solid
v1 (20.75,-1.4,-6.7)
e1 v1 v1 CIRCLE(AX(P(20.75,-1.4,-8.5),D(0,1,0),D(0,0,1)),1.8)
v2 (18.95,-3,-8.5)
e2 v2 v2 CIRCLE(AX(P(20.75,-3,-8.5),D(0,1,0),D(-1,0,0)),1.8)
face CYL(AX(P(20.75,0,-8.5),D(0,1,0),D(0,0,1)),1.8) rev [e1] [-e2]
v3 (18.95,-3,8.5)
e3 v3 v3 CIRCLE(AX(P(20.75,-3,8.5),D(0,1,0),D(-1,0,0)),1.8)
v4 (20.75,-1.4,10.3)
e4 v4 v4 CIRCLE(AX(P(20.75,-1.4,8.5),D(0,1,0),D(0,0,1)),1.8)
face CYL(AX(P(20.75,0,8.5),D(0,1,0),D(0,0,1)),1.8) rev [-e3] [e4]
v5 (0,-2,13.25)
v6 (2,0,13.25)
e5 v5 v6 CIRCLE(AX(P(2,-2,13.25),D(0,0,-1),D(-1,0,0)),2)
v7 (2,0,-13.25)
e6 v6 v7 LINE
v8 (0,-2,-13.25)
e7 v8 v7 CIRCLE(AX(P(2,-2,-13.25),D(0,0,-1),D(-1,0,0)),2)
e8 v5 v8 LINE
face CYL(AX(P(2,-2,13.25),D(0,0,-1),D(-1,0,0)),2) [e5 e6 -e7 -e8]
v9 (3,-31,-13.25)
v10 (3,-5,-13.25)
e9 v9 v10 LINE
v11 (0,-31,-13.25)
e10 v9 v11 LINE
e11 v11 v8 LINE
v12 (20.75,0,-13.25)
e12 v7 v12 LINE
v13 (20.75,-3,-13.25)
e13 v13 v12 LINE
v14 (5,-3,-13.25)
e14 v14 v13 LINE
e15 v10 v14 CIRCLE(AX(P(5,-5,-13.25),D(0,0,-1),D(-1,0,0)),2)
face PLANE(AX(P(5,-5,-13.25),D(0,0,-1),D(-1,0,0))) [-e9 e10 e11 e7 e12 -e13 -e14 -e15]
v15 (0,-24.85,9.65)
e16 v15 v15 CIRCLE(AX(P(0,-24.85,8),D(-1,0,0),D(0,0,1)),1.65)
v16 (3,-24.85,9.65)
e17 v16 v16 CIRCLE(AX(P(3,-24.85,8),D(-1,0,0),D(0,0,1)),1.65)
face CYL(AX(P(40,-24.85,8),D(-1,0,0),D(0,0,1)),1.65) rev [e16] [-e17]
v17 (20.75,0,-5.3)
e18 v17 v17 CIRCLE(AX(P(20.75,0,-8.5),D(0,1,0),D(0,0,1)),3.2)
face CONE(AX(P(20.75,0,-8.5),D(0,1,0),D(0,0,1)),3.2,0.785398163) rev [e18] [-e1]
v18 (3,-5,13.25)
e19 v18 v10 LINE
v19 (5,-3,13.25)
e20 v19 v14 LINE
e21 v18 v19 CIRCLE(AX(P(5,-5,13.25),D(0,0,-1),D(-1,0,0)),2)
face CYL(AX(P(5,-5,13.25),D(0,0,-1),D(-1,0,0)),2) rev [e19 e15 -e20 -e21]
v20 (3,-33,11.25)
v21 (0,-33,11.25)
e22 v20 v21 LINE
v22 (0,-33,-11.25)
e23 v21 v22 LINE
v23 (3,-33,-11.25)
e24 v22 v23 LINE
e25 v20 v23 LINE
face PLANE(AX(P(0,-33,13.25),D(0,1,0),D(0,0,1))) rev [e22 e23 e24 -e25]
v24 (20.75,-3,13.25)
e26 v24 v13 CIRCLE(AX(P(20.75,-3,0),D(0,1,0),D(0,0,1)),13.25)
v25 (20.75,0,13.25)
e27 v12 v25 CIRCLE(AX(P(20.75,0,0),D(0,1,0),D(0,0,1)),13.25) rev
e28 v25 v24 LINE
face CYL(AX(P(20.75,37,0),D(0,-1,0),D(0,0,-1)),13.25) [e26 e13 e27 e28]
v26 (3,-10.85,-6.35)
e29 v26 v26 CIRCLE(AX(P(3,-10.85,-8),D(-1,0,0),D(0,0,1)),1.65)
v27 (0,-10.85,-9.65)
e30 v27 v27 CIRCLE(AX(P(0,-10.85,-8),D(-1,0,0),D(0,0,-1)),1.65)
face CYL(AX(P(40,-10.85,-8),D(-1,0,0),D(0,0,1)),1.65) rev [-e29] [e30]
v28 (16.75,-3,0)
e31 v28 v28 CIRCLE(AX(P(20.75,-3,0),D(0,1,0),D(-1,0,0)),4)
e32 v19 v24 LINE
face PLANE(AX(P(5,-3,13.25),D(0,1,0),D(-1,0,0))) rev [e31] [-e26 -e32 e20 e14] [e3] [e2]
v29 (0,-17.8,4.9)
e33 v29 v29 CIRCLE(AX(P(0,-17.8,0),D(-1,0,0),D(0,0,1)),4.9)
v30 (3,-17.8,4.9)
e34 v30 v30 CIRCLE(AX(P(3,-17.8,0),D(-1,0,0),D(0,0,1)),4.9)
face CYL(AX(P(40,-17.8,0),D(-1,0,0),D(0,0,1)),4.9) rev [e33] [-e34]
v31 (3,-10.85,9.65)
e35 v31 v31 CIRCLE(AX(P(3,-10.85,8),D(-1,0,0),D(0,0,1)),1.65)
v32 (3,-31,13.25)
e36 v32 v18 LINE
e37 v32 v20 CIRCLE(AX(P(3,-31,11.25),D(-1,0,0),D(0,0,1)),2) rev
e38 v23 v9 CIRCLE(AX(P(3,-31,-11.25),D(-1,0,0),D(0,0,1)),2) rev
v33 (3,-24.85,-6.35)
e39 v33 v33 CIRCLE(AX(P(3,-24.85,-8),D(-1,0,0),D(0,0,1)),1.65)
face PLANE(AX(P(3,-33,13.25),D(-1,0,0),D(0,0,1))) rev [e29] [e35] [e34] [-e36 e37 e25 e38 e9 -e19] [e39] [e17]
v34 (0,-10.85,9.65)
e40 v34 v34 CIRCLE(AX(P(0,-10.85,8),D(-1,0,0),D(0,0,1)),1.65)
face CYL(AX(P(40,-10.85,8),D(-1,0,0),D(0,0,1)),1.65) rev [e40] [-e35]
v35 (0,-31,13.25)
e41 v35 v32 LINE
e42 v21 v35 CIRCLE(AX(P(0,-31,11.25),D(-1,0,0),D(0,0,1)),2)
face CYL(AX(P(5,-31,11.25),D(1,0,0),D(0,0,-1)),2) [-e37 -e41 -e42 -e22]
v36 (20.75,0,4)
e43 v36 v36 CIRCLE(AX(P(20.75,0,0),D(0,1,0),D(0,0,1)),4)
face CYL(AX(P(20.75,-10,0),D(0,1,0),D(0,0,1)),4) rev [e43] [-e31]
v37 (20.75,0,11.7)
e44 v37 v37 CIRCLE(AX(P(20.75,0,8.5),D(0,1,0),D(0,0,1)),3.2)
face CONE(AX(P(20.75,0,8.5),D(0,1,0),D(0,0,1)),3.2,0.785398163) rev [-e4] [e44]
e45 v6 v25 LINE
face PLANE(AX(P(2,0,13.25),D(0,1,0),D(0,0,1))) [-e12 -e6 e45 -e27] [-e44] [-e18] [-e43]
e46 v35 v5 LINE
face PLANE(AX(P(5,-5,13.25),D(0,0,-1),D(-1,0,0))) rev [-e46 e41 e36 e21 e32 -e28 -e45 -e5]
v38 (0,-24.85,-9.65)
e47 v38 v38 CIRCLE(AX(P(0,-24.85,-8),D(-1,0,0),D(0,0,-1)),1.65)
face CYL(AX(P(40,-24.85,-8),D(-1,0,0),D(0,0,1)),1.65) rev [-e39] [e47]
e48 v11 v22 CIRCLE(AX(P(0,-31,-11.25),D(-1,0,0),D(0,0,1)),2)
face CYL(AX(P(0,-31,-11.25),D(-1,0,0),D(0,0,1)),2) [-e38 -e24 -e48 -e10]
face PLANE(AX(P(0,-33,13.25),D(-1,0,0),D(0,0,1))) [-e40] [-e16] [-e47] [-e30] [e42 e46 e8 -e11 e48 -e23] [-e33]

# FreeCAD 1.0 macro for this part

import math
import FreeCAD as App
import Part
import Sketcher
from FreeCAD import Vector


def edges_at(feature, points):
    """Names of the edges that pass closest to the given points."""
    edges = feature.Shape.Edges
    near = lambda p: min(range(len(edges)), key=lambda i: edges[i].distToShape(Part.Vertex(*p))[0])
    return sorted({f"Edge{near(p) + 1}" for p in points})

doc = App.newDocument("Part")
body = doc.addObject("PartDesign::Body", "Body")

# Sketch on XY plane
sketch1 = body.newObject("Sketcher::SketchObject", "Sketch")
sketch1.AttachmentSupport = (doc.getObject("XY_Plane"), [""])
sketch1.MapMode = "FlatFace"
sketch1.addGeometry(Part.LineSegment(Vector(0, -2, 0), Vector(0, -33, 0)), False)
sketch1.addGeometry(Part.LineSegment(Vector(0, -33, 0), Vector(3, -33, 0)), False)
sketch1.addGeometry(Part.LineSegment(Vector(3, -33, 0), Vector(3, -5, 0)), False)
sketch1.addGeometry(Part.ArcOfCircle(Part.Circle(Vector(5, -5, 0), Vector(0, 0, 1), 2), math.radians(90), math.radians(180)), False)
sketch1.addGeometry(Part.LineSegment(Vector(5, -3, 0), Vector(50, -3, 0)), False)
sketch1.addGeometry(Part.LineSegment(Vector(50, -3, 0), Vector(50, 0, 0)), False)
sketch1.addGeometry(Part.LineSegment(Vector(50, 0, 0), Vector(2, 0, 0)), False)
sketch1.addGeometry(Part.ArcOfCircle(Part.Circle(Vector(2, -2, 0), Vector(0, 0, 1), 2), math.radians(90), math.radians(180)), False)
sketch1.addConstraint(Sketcher.Constraint("Coincident", 0, 2, 1, 1))
sketch1.addConstraint(Sketcher.Constraint("Coincident", 1, 2, 2, 1))
sketch1.addConstraint(Sketcher.Constraint("Tangent", 2, 2, 3, 2))
sketch1.addConstraint(Sketcher.Constraint("Tangent", 3, 1, 4, 1))
sketch1.addConstraint(Sketcher.Constraint("Coincident", 4, 2, 5, 1))
sketch1.addConstraint(Sketcher.Constraint("Coincident", 5, 2, 6, 1))
sketch1.addConstraint(Sketcher.Constraint("Tangent", 6, 2, 7, 1))
sketch1.addConstraint(Sketcher.Constraint("Tangent", 7, 2, 0, 1))
sketch1.addConstraint(Sketcher.Constraint("Vertical", 0))
sketch1.addConstraint(Sketcher.Constraint("Horizontal", 1))
sketch1.addConstraint(Sketcher.Constraint("Vertical", 2))
sketch1.addConstraint(Sketcher.Constraint("Horizontal", 4))
sketch1.addConstraint(Sketcher.Constraint("Vertical", 5))
sketch1.addConstraint(Sketcher.Constraint("Horizontal", 6))
sketch1.addConstraint(Sketcher.Constraint("Equal", 3, 7))
sketch1.addConstraint(Sketcher.Constraint("PointOnObject", 0, 2, -2))
sketch1.addConstraint(Sketcher.Constraint("PointOnObject", 5, 2, -1))
sketch1.addConstraint(Sketcher.Constraint("Equal", 1, 5))
sketch1.addConstraint(Sketcher.Constraint("Radius", 3, 2.0))
sketch1.addConstraint(Sketcher.Constraint("DistanceX", 1, 1, 1, 2, 3.0))
sketch1.addConstraint(Sketcher.Constraint("DistanceX", 4, 1, 4, 2, 45.0))
sketch1.addConstraint(Sketcher.Constraint("DistanceY", 0, 2, 0, 1, 31.0))
pad1 = body.newObject("PartDesign::Pad", "Pad")
pad1.Profile = sketch1
pad1.Length = 26.5
pad1.Midplane = True

# Sketch on XZ plane
sketch2 = body.newObject("Sketcher::SketchObject", "Sketch001")
sketch2.AttachmentSupport = (doc.getObject("XZ_Plane"), [""])
sketch2.MapMode = "FlatFace"
sketch2.AttachmentOffset = App.Placement(Vector(0, 0, 3), App.Rotation())
sketch2.addGeometry(Part.LineSegment(Vector(50, 13, 0), Vector(21, 13, 0)), False)
sketch2.addGeometry(Part.ArcOfCircle(Part.Circle(Vector(21, 0, 0), Vector(0, 0, 1), 13), math.radians(-90), math.radians(90)), False)
sketch2.addGeometry(Part.LineSegment(Vector(21, -13, 0), Vector(50, -13, 0)), False)
sketch2.addGeometry(Part.LineSegment(Vector(50, -13, 0), Vector(50, 13, 0)), False)
sketch2.addConstraint(Sketcher.Constraint("Tangent", 0, 2, 1, 2))
sketch2.addConstraint(Sketcher.Constraint("Tangent", 1, 1, 2, 1))
sketch2.addConstraint(Sketcher.Constraint("Coincident", 2, 2, 3, 1))
sketch2.addConstraint(Sketcher.Constraint("Coincident", 3, 2, 0, 1))
sketch2.addConstraint(Sketcher.Constraint("Horizontal", 0))
sketch2.addConstraint(Sketcher.Constraint("Horizontal", 2))
sketch2.addConstraint(Sketcher.Constraint("Vertical", 3))
sketch2.addConstraint(Sketcher.Constraint("PointOnObject", 1, 3, -1))
sketch2.addConstraint(Sketcher.Constraint("Radius", 1, 13.25))
sketch2.addConstraint(Sketcher.Constraint("DistanceX", -1, 1, 2, 2, 50.0))
sketch2.addConstraint(Sketcher.Constraint("DistanceX", 0, 2, 0, 1, 29.25))
pocket1 = body.newObject("PartDesign::Pocket", "Pocket")
pocket1.Profile = sketch2
pocket1.Length = 40

# Sketch on YZ plane
sketch3 = body.newObject("Sketcher::SketchObject", "Sketch002")
sketch3.AttachmentSupport = (doc.getObject("YZ_Plane"), [""])
sketch3.MapMode = "FlatFace"
sketch3.addGeometry(Part.Circle(Vector(-10.8, 8, 0), Vector(0, 0, 1), 1.6), False)
sketch3.addGeometry(Part.Circle(Vector(-24.9, 8, 0), Vector(0, 0, 1), 1.6), False)
sketch3.addGeometry(Part.Circle(Vector(-24.9, -8, 0), Vector(0, 0, 1), 1.6), False)
sketch3.addGeometry(Part.Circle(Vector(-10.8, -8, 0), Vector(0, 0, 1), 1.6), False)
sketch3.addGeometry(Part.Circle(Vector(-17.8, 0, 0), Vector(0, 0, 1), 4.9), False)
sketch3.addConstraint(Sketcher.Constraint("Equal", 0, 1))
sketch3.addConstraint(Sketcher.Constraint("Equal", 1, 2))
sketch3.addConstraint(Sketcher.Constraint("Equal", 2, 3))
sketch3.addConstraint(Sketcher.Constraint("Symmetric", 1, 3, 2, 3, -1))
sketch3.addConstraint(Sketcher.Constraint("Symmetric", 0, 3, 3, 3, -1))
sketch3.addConstraint(Sketcher.Constraint("PointOnObject", 4, 3, -1))
sketch3.addConstraint(Sketcher.Constraint("Horizontal", 0, 3, 1, 3))
sketch3.addConstraint(Sketcher.Constraint("Diameter", 0, 3.3))
sketch3.addConstraint(Sketcher.Constraint("Diameter", 4, 9.8))
sketch3.addConstraint(Sketcher.Constraint("DistanceY", -1, 1, 0, 3, 8.0))
sketch3.addConstraint(Sketcher.Constraint("DistanceX", 1, 3, 0, 3, 14.0))
sketch3.addConstraint(Sketcher.Constraint("DistanceX", 4, 3, -1, 1, 17.8))
sketch3.addConstraint(Sketcher.Constraint("DistanceX", 0, 3, -1, 1, 10.85))
pocket2 = body.newObject("PartDesign::Pocket", "Pocket001")
pocket2.Profile = sketch3
pocket2.Length = 40
pocket2.Reversed = True
doc.recompute()

fillet = body.newObject("PartDesign::Fillet", "Fillet")
fillet.Base = (pocket2, edges_at(pocket2, [(1.5, -33, 13.25), (1.5, -33, -13.25)]))
fillet.Radius = 2

# Sketch on XZ plane
sketch4 = body.newObject("Sketcher::SketchObject", "Sketch003")
sketch4.AttachmentSupport = (doc.getObject("XZ_Plane"), [""])
sketch4.MapMode = "FlatFace"
sketch4.addGeometry(Part.Circle(Vector(20.8, 0, 0), Vector(0, 0, 1), 4), False)
sketch4.addConstraint(Sketcher.Constraint("PointOnObject", 0, 3, -1))
sketch4.addConstraint(Sketcher.Constraint("Diameter", 0, 8.0))
sketch4.addConstraint(Sketcher.Constraint("DistanceX", -1, 1, 0, 3, 20.75))
pocket3 = body.newObject("PartDesign::Pocket", "Pocket002")
pocket3.Profile = sketch4
pocket3.Length = 10
pocket3.Reversed = True

# Sketch on XZ plane
sketch5 = body.newObject("Sketcher::SketchObject", "Sketch004")
sketch5.AttachmentSupport = (doc.getObject("XZ_Plane"), [""])
sketch5.MapMode = "FlatFace"
sketch5.addGeometry(Part.Circle(Vector(20.8, 8.5, 0), Vector(0, 0, 1), 1.8), False)
sketch5.addConstraint(Sketcher.Constraint("Diameter", 0, 3.6))
sketch5.addConstraint(Sketcher.Constraint("DistanceY", -1, 1, 0, 3, 8.5))
sketch5.addConstraint(Sketcher.Constraint("DistanceX", -1, 1, 0, 3, 20.75))
doc.recompute()
hole = body.newObject("PartDesign::Hole", "Hole")
hole.Profile = sketch5
hole.ThreadType = "None"
hole.Diameter = 3.6
hole.DepthType = "Dimension"
hole.Depth = 8
hole.DrillPoint = "Angled"
hole.DrillPointAngle = 118
hole.HoleCutType = "Countersink"
hole.HoleCutDiameter = 6.4
hole.HoleCutCountersinkAngle = 90
hole.Reversed = True

# Sketch on XZ plane
sketch6 = body.newObject("Sketcher::SketchObject", "Sketch005")
sketch6.AttachmentSupport = (doc.getObject("XZ_Plane"), [""])
sketch6.MapMode = "FlatFace"
sketch6.addGeometry(Part.Circle(Vector(20.8, -8.5, 0), Vector(0, 0, 1), 1.8), False)
sketch6.addConstraint(Sketcher.Constraint("Diameter", 0, 3.6))
sketch6.addConstraint(Sketcher.Constraint("DistanceY", 0, 3, -1, 1, 8.5))
sketch6.addConstraint(Sketcher.Constraint("DistanceX", -1, 1, 0, 3, 20.75))
doc.recompute()
hole2 = body.newObject("PartDesign::Hole", "Hole001")
hole2.Profile = sketch6
hole2.ThreadType = "None"
hole2.Diameter = 3.6
hole2.DepthType = "Dimension"
hole2.Depth = 8
hole2.DrillPoint = "Angled"
hole2.DrillPointAngle = 118
hole2.HoleCutType = "Countersink"
hole2.HoleCutDiameter = 6.4
hole2.HoleCutCountersinkAngle = 90
hole2.Reversed = True

doc.recompute()
